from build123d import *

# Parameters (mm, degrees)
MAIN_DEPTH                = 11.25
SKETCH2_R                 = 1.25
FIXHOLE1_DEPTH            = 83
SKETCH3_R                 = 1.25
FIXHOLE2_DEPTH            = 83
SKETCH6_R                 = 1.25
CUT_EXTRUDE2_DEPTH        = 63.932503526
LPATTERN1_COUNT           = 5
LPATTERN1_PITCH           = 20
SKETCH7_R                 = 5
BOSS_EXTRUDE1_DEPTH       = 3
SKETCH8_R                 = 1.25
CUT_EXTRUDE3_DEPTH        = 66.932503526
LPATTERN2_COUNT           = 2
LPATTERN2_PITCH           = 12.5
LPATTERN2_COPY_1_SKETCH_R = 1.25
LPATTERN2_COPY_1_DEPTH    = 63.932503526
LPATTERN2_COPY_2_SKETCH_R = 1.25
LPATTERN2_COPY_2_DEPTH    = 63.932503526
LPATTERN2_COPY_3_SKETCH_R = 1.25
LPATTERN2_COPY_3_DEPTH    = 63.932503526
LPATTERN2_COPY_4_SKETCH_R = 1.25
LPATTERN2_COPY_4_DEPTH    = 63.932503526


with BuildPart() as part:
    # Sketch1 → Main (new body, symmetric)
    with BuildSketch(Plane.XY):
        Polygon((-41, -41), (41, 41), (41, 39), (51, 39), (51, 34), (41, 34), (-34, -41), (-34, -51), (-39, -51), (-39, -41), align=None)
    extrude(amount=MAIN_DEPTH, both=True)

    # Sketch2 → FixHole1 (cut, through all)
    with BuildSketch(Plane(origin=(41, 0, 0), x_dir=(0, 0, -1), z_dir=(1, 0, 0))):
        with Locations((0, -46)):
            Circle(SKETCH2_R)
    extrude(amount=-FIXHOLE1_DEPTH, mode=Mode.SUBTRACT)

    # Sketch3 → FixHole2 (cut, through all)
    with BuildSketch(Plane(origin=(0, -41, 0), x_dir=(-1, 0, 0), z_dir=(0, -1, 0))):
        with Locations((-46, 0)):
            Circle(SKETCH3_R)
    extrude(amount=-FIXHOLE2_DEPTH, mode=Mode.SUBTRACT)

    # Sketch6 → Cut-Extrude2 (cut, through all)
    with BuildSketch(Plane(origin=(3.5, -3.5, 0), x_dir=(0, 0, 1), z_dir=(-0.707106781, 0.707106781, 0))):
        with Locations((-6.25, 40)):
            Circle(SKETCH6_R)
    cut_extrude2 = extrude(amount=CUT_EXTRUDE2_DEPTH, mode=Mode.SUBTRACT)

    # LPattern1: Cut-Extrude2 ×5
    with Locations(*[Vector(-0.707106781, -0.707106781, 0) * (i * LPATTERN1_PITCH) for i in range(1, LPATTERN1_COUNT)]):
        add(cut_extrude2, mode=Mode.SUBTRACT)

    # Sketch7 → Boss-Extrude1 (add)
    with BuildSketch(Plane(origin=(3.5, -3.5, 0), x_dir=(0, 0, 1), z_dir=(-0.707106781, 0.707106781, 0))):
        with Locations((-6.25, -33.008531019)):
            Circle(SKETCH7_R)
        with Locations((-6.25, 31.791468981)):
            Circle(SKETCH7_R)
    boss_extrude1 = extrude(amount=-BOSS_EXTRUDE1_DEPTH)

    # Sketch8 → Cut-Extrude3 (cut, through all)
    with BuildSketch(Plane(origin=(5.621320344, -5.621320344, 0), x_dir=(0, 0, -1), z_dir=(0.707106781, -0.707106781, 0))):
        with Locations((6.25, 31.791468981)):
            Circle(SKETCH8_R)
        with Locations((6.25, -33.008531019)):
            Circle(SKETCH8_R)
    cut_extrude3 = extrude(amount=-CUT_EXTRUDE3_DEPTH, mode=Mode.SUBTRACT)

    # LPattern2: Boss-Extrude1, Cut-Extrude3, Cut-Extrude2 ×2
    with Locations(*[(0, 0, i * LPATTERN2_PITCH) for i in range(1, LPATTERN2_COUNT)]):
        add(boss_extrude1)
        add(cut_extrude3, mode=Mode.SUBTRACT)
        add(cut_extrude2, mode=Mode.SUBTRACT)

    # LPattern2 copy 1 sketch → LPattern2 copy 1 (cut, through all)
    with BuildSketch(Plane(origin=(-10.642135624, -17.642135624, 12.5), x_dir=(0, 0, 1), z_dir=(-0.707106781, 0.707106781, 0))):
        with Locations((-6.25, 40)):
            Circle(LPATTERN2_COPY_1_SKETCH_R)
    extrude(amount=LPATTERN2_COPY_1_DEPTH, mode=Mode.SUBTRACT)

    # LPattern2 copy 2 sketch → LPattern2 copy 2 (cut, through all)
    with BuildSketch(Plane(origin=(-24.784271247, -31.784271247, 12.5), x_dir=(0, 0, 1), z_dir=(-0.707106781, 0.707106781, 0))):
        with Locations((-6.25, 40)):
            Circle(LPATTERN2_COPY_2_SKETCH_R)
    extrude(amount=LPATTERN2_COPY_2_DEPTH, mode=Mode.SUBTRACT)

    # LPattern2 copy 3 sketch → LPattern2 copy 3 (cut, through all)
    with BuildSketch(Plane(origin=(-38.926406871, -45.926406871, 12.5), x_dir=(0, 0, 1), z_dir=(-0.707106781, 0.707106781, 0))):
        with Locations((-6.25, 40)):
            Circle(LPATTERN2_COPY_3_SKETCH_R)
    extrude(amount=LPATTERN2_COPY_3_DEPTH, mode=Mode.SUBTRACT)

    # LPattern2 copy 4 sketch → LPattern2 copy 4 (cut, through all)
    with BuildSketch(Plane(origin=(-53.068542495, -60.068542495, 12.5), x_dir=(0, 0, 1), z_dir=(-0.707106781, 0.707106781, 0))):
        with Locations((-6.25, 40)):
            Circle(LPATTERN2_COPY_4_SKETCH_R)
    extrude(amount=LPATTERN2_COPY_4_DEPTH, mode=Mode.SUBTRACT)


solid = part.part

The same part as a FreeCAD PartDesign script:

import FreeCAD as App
import Part
import Sketcher
Q = App.Units.Quantity

doc = App.newDocument("Part")
body = doc.addObject("PartDesign::Body", "Body")

sketch1 = body.newObject("Sketcher::SketchObject", "Sketch")
sketch1.AttachmentSupport = (doc.getObject("XY_Plane"), [""])
sketch1.MapMode = "FlatFace"
sketch1.addGeometry([
    Part.LineSegment(App.Vector(41, 41, 0), App.Vector(-41, -41, 0)),
    Part.LineSegment(App.Vector(-41, -41, 0), App.Vector(-39, -41, 0)),
    Part.LineSegment(App.Vector(-39, -41, 0), App.Vector(-39, -51, 0)),
    Part.LineSegment(App.Vector(-39, -51, 0), App.Vector(-34, -51, 0)),
    Part.LineSegment(App.Vector(-34, -51, 0), App.Vector(-34, -41, 0)),
    Part.LineSegment(App.Vector(-34, -41, 0), App.Vector(41, 34, 0)),
    Part.LineSegment(App.Vector(41, 34, 0), App.Vector(51, 34, 0)),
    Part.LineSegment(App.Vector(51, 34, 0), App.Vector(51, 39, 0)),
    Part.LineSegment(App.Vector(51, 39, 0), App.Vector(41, 39, 0)),
    Part.LineSegment(App.Vector(41, 39, 0), App.Vector(41, 41, 0)),
], False)
sketch1.addConstraint([
    Sketcher.Constraint("Coincident", 0, 2, 1, 1),
    Sketcher.Constraint("Coincident", 1, 2, 2, 1),
    Sketcher.Constraint("Coincident", 2, 2, 3, 1),
    Sketcher.Constraint("Coincident", 3, 2, 4, 1),
    Sketcher.Constraint("Coincident", 4, 2, 5, 1),
    Sketcher.Constraint("Coincident", 5, 2, 6, 1),
    Sketcher.Constraint("Coincident", 6, 2, 7, 1),
    Sketcher.Constraint("Coincident", 7, 2, 8, 1),
    Sketcher.Constraint("Coincident", 8, 2, 9, 1),
    Sketcher.Constraint("Coincident", 9, 2, 0, 1),
    Sketcher.Constraint("Horizontal", 1),
    Sketcher.Constraint("Vertical", 2),
    Sketcher.Constraint("Horizontal", 3),
    Sketcher.Constraint("Vertical", 4),
    Sketcher.Constraint("Horizontal", 6),
    Sketcher.Constraint("Vertical", 7),
    Sketcher.Constraint("Horizontal", 8),
    Sketcher.Constraint("Vertical", 9),
    Sketcher.Constraint("Symmetric", 0, 2, 9, 2, -1, 1),
    Sketcher.Constraint("Parallel", 0, 5),
    Sketcher.Constraint("Horizontal", 1, 2, 4, 2),
    Sketcher.Constraint("Vertical", 5, 2, 8, 2),
    Sketcher.Constraint("Equal", 8, 2),
    Sketcher.Constraint("Equal", 3, 7),
    Sketcher.Constraint("Equal", 1, 9),
    Sketcher.Constraint("DistanceX", 1, 1, 1, 2, Q("2 mm")),
    Sketcher.Constraint("DistanceX", 3, 1, 3, 2, Q("5 mm")),
    Sketcher.Constraint("DistanceX", 6, 1, 6, 2, Q("10 mm")),
    Sketcher.Constraint("DistanceX", 0, 2, -1, 1, Q("41 mm")),
])
pad1 = body.newObject("PartDesign::Pad", "Pad")
pad1.Profile = sketch1
pad1.Length = 22.5
pad1.Midplane = True

sketch2 = body.newObject("Sketcher::SketchObject", "Sketch001")
sketch2.AttachmentSupport = (doc.getObject("YZ_Plane"), [""])
sketch2.MapMode = "FlatFace"
sketch2.AttachmentOffset = App.Placement(App.Vector(0, 0, 41), App.Rotation())
sketch2.addGeometry(Part.Circle(App.Vector(-46, 0, 0), App.Vector(0, 0, 1), 1.2), False)
sketch2.addConstraint([
    Sketcher.Constraint("PointOnObject", 0, 3, -1),
    Sketcher.Constraint("Diameter", 0, Q("2.5 mm")),
    Sketcher.Constraint("DistanceX", 0, 3, -1, 1, Q("46 mm")),
])
pocket1 = body.newObject("PartDesign::Pocket", "Pocket")
pocket1.Profile = sketch2
pocket1.Type = "ThroughAll"

sketch3 = body.newObject("Sketcher::SketchObject", "Sketch002")
sketch3.AttachmentSupport = (doc.getObject("XZ_Plane"), [""])
sketch3.MapMode = "FlatFace"
sketch3.AttachmentOffset = App.Placement(App.Vector(0, 0, 41), App.Rotation())
sketch3.addGeometry(Part.Circle(App.Vector(46, 0, 0), App.Vector(0, 0, 1), 1.2), False)
sketch3.addConstraint([
    Sketcher.Constraint("PointOnObject", 0, 3, -1),
    Sketcher.Constraint("Diameter", 0, Q("2.5 mm")),
    Sketcher.Constraint("DistanceX", -1, 1, 0, 3, Q("46 mm")),
])
pocket2 = body.newObject("PartDesign::Pocket", "Pocket001")
pocket2.Profile = sketch3
pocket2.Type = "ThroughAll"

sketch4 = body.newObject("Sketcher::SketchObject", "Sketch003")
sketch4.Placement = App.Placement(App.Vector(3.5, -3.5, 0), App.Rotation(App.Vector(0, 0, 1), App.Vector(0.707106781, 0.707106781, 0), App.Vector(-0.707106781, 0.707106781, 0), "ZXY"))
sketch4.addGeometry(Part.Circle(App.Vector(-6.2, 40, 0), App.Vector(0, 0, 1), 1.2), False)
sketch4.addConstraint([
    Sketcher.Constraint("Diameter", 0, Q("2.5 mm")),
    Sketcher.Constraint("DistanceY", -1, 1, 0, 3, Q("40 mm")),
    Sketcher.Constraint("DistanceX", 0, 3, -1, 1, Q("6.25 mm")),
])
pocket3 = body.newObject("PartDesign::Pocket", "Pocket002")
pocket3.Profile = sketch4
pocket3.Type = "ThroughAll"
pocket3.Reversed = True
doc.recompute()

datumline = body.newObject("PartDesign::Line", "DatumLine")
datumline.Placement = App.Placement(App.Vector(0, 0, 0), App.Rotation(App.Vector(0, 0, 1), App.Vector(-0.707106781, -0.707106781, 0)))
linearpattern = body.newObject("PartDesign::LinearPattern", "LinearPattern")
linearpattern.Originals = [pocket3]
linearpattern.Direction = (datumline, [""])
linearpattern.Mode = "offset"
linearpattern.Offset = 20
linearpattern.Occurrences = 5
body.Tip = linearpattern

sketch5 = body.newObject("Sketcher::SketchObject", "Sketch004")
sketch5.Placement = App.Placement(App.Vector(3.5, -3.5, 0), App.Rotation(App.Vector(0, 0, 1), App.Vector(0.707106781, 0.707106781, 0), App.Vector(-0.707106781, 0.707106781, 0), "ZXY"))
sketch5.addGeometry([
    Part.Circle(App.Vector(-6, -33, 0), App.Vector(0, 0, 1), 5),
    Part.Circle(App.Vector(-6, 32, 0), App.Vector(0, 0, 1), 5),
], False)
sketch5.addConstraint([
    Sketcher.Constraint("Equal", 0, 1),
    Sketcher.Constraint("Vertical", 0, 3, 1, 3),
    Sketcher.Constraint("Diameter", 0, Q("10 mm")),
    Sketcher.Constraint("DistanceY", 0, 3, 1, 3, Q("64.8 mm")),
    Sketcher.Constraint("DistanceX", 0, 3, -1, 1, Q("6.25 mm")),
    Sketcher.Constraint("DistanceY", 0, 3, -1, 1, Q("33.008531 mm")),
])
pad2 = body.newObject("PartDesign::Pad", "Pad001")
pad2.Profile = sketch5
pad2.Length = 3
pad2.Reversed = True

sketch6 = body.newObject("Sketcher::SketchObject", "Sketch005")
sketch6.Placement = App.Placement(App.Vector(5.62132, -5.62132, 0), App.Rotation(App.Vector(0, 0, -1), App.Vector(0.707106781, 0.707106781, 0), App.Vector(0.707106781, -0.707106781, 0), "ZXY"))
sketch6.addGeometry([
    Part.Circle(App.Vector(6.2, 31.8, 0), App.Vector(0, 0, 1), 1.2),
    Part.Circle(App.Vector(6.2, -33, 0), App.Vector(0, 0, 1), 1.2),
], False)
sketch6.addConstraint([
    Sketcher.Constraint("Equal", 0, 1),
    Sketcher.Constraint("Vertical", 0, 3, 1, 3),
    Sketcher.Constraint("Diameter", 0, Q("2.5 mm")),
    Sketcher.Constraint("DistanceY", 1, 3, 0, 3, Q("64.8 mm")),
    Sketcher.Constraint("DistanceX", -1, 1, 0, 3, Q("6.25 mm")),
    Sketcher.Constraint("DistanceY", -1, 1, 0, 3, Q("31.791469 mm")),
])
pocket4 = body.newObject("PartDesign::Pocket", "Pocket003")
pocket4.Profile = sketch6
pocket4.Type = "ThroughAll"
doc.recompute()

linearpattern2 = body.newObject("PartDesign::LinearPattern", "LinearPattern001")
linearpattern2.Originals = [pad2, pocket4, pocket3]
linearpattern2.Direction = (doc.getObject("Z_Axis"), [""])
linearpattern2.Mode = "offset"
linearpattern2.Offset = 12.5
linearpattern2.Occurrences = 2
body.Tip = linearpattern2

sketch7 = body.newObject("Sketcher::SketchObject", "Sketch006")
sketch7.Placement = App.Placement(App.Vector(-10.642136, -17.642136, 12.5), App.Rotation(App.Vector(0, 0, 1), App.Vector(0.707106781, 0.707106781, 0), App.Vector(-0.707106781, 0.707106781, 0), "ZXY"))
sketch7.addGeometry(Part.Circle(App.Vector(-6.2, 40, 0), App.Vector(0, 0, 1), 1.2), False)
sketch7.addConstraint([
    Sketcher.Constraint("Diameter", 0, Q("2.5 mm")),
    Sketcher.Constraint("DistanceY", -1, 1, 0, 3, Q("40 mm")),
    Sketcher.Constraint("DistanceX", 0, 3, -1, 1, Q("6.25 mm")),
])
pocket5 = body.newObject("PartDesign::Pocket", "Pocket004")
pocket5.Profile = sketch7
pocket5.Type = "ThroughAll"
pocket5.Reversed = True

sketch8 = body.newObject("Sketcher::SketchObject", "Sketch007")
sketch8.Placement = App.Placement(App.Vector(-24.784271, -31.784271, 12.5), App.Rotation(App.Vector(0, 0, 1), App.Vector(0.707106781, 0.707106781, 0), App.Vector(-0.707106781, 0.707106781, 0), "ZXY"))
sketch8.addGeometry(Part.Circle(App.Vector(-6.2, 40, 0), App.Vector(0, 0, 1), 1.2), False)
sketch8.addConstraint([
    Sketcher.Constraint("Diameter", 0, Q("2.5 mm")),
    Sketcher.Constraint("DistanceY", -1, 1, 0, 3, Q("40 mm")),
    Sketcher.Constraint("DistanceX", 0, 3, -1, 1, Q("6.25 mm")),
])
pocket6 = body.newObject("PartDesign::Pocket", "Pocket005")
pocket6.Profile = sketch8
pocket6.Type = "ThroughAll"
pocket6.Reversed = True

sketch9 = body.newObject("Sketcher::SketchObject", "Sketch008")
sketch9.Placement = App.Placement(App.Vector(-38.926407, -45.926407, 12.5), App.Rotation(App.Vector(0, 0, 1), App.Vector(0.707106781, 0.707106781, 0), App.Vector(-0.707106781, 0.707106781, 0), "ZXY"))
sketch9.addGeometry(Part.Circle(App.Vector(-6.2, 40, 0), App.Vector(0, 0, 1), 1.2), False)
sketch9.addConstraint([
    Sketcher.Constraint("Diameter", 0, Q("2.5 mm")),
    Sketcher.Constraint("DistanceY", -1, 1, 0, 3, Q("40 mm")),
    Sketcher.Constraint("DistanceX", 0, 3, -1, 1, Q("6.25 mm")),
])
pocket7 = body.newObject("PartDesign::Pocket", "Pocket006")
pocket7.Profile = sketch9
pocket7.Type = "ThroughAll"
pocket7.Reversed = True

sketch10 = body.newObject("Sketcher::SketchObject", "Sketch009")
sketch10.Placement = App.Placement(App.Vector(-53.068542, -60.068542, 12.5), App.Rotation(App.Vector(0, 0, 1), App.Vector(0.707106781, 0.707106781, 0), App.Vector(-0.707106781, 0.707106781, 0), "ZXY"))
sketch10.addGeometry(Part.Circle(App.Vector(-6.2, 40, 0), App.Vector(0, 0, 1), 1.2), False)
sketch10.addConstraint([
    Sketcher.Constraint("Diameter", 0, Q("2.5 mm")),
    Sketcher.Constraint("DistanceY", -1, 1, 0, 3, Q("40 mm")),
    Sketcher.Constraint("DistanceX", 0, 3, -1, 1, Q("6.25 mm")),
])
pocket8 = body.newObject("PartDesign::Pocket", "Pocket007")
pocket8.Profile = sketch10
pocket8.Type = "ThroughAll"
pocket8.Reversed = True

doc.recompute()
